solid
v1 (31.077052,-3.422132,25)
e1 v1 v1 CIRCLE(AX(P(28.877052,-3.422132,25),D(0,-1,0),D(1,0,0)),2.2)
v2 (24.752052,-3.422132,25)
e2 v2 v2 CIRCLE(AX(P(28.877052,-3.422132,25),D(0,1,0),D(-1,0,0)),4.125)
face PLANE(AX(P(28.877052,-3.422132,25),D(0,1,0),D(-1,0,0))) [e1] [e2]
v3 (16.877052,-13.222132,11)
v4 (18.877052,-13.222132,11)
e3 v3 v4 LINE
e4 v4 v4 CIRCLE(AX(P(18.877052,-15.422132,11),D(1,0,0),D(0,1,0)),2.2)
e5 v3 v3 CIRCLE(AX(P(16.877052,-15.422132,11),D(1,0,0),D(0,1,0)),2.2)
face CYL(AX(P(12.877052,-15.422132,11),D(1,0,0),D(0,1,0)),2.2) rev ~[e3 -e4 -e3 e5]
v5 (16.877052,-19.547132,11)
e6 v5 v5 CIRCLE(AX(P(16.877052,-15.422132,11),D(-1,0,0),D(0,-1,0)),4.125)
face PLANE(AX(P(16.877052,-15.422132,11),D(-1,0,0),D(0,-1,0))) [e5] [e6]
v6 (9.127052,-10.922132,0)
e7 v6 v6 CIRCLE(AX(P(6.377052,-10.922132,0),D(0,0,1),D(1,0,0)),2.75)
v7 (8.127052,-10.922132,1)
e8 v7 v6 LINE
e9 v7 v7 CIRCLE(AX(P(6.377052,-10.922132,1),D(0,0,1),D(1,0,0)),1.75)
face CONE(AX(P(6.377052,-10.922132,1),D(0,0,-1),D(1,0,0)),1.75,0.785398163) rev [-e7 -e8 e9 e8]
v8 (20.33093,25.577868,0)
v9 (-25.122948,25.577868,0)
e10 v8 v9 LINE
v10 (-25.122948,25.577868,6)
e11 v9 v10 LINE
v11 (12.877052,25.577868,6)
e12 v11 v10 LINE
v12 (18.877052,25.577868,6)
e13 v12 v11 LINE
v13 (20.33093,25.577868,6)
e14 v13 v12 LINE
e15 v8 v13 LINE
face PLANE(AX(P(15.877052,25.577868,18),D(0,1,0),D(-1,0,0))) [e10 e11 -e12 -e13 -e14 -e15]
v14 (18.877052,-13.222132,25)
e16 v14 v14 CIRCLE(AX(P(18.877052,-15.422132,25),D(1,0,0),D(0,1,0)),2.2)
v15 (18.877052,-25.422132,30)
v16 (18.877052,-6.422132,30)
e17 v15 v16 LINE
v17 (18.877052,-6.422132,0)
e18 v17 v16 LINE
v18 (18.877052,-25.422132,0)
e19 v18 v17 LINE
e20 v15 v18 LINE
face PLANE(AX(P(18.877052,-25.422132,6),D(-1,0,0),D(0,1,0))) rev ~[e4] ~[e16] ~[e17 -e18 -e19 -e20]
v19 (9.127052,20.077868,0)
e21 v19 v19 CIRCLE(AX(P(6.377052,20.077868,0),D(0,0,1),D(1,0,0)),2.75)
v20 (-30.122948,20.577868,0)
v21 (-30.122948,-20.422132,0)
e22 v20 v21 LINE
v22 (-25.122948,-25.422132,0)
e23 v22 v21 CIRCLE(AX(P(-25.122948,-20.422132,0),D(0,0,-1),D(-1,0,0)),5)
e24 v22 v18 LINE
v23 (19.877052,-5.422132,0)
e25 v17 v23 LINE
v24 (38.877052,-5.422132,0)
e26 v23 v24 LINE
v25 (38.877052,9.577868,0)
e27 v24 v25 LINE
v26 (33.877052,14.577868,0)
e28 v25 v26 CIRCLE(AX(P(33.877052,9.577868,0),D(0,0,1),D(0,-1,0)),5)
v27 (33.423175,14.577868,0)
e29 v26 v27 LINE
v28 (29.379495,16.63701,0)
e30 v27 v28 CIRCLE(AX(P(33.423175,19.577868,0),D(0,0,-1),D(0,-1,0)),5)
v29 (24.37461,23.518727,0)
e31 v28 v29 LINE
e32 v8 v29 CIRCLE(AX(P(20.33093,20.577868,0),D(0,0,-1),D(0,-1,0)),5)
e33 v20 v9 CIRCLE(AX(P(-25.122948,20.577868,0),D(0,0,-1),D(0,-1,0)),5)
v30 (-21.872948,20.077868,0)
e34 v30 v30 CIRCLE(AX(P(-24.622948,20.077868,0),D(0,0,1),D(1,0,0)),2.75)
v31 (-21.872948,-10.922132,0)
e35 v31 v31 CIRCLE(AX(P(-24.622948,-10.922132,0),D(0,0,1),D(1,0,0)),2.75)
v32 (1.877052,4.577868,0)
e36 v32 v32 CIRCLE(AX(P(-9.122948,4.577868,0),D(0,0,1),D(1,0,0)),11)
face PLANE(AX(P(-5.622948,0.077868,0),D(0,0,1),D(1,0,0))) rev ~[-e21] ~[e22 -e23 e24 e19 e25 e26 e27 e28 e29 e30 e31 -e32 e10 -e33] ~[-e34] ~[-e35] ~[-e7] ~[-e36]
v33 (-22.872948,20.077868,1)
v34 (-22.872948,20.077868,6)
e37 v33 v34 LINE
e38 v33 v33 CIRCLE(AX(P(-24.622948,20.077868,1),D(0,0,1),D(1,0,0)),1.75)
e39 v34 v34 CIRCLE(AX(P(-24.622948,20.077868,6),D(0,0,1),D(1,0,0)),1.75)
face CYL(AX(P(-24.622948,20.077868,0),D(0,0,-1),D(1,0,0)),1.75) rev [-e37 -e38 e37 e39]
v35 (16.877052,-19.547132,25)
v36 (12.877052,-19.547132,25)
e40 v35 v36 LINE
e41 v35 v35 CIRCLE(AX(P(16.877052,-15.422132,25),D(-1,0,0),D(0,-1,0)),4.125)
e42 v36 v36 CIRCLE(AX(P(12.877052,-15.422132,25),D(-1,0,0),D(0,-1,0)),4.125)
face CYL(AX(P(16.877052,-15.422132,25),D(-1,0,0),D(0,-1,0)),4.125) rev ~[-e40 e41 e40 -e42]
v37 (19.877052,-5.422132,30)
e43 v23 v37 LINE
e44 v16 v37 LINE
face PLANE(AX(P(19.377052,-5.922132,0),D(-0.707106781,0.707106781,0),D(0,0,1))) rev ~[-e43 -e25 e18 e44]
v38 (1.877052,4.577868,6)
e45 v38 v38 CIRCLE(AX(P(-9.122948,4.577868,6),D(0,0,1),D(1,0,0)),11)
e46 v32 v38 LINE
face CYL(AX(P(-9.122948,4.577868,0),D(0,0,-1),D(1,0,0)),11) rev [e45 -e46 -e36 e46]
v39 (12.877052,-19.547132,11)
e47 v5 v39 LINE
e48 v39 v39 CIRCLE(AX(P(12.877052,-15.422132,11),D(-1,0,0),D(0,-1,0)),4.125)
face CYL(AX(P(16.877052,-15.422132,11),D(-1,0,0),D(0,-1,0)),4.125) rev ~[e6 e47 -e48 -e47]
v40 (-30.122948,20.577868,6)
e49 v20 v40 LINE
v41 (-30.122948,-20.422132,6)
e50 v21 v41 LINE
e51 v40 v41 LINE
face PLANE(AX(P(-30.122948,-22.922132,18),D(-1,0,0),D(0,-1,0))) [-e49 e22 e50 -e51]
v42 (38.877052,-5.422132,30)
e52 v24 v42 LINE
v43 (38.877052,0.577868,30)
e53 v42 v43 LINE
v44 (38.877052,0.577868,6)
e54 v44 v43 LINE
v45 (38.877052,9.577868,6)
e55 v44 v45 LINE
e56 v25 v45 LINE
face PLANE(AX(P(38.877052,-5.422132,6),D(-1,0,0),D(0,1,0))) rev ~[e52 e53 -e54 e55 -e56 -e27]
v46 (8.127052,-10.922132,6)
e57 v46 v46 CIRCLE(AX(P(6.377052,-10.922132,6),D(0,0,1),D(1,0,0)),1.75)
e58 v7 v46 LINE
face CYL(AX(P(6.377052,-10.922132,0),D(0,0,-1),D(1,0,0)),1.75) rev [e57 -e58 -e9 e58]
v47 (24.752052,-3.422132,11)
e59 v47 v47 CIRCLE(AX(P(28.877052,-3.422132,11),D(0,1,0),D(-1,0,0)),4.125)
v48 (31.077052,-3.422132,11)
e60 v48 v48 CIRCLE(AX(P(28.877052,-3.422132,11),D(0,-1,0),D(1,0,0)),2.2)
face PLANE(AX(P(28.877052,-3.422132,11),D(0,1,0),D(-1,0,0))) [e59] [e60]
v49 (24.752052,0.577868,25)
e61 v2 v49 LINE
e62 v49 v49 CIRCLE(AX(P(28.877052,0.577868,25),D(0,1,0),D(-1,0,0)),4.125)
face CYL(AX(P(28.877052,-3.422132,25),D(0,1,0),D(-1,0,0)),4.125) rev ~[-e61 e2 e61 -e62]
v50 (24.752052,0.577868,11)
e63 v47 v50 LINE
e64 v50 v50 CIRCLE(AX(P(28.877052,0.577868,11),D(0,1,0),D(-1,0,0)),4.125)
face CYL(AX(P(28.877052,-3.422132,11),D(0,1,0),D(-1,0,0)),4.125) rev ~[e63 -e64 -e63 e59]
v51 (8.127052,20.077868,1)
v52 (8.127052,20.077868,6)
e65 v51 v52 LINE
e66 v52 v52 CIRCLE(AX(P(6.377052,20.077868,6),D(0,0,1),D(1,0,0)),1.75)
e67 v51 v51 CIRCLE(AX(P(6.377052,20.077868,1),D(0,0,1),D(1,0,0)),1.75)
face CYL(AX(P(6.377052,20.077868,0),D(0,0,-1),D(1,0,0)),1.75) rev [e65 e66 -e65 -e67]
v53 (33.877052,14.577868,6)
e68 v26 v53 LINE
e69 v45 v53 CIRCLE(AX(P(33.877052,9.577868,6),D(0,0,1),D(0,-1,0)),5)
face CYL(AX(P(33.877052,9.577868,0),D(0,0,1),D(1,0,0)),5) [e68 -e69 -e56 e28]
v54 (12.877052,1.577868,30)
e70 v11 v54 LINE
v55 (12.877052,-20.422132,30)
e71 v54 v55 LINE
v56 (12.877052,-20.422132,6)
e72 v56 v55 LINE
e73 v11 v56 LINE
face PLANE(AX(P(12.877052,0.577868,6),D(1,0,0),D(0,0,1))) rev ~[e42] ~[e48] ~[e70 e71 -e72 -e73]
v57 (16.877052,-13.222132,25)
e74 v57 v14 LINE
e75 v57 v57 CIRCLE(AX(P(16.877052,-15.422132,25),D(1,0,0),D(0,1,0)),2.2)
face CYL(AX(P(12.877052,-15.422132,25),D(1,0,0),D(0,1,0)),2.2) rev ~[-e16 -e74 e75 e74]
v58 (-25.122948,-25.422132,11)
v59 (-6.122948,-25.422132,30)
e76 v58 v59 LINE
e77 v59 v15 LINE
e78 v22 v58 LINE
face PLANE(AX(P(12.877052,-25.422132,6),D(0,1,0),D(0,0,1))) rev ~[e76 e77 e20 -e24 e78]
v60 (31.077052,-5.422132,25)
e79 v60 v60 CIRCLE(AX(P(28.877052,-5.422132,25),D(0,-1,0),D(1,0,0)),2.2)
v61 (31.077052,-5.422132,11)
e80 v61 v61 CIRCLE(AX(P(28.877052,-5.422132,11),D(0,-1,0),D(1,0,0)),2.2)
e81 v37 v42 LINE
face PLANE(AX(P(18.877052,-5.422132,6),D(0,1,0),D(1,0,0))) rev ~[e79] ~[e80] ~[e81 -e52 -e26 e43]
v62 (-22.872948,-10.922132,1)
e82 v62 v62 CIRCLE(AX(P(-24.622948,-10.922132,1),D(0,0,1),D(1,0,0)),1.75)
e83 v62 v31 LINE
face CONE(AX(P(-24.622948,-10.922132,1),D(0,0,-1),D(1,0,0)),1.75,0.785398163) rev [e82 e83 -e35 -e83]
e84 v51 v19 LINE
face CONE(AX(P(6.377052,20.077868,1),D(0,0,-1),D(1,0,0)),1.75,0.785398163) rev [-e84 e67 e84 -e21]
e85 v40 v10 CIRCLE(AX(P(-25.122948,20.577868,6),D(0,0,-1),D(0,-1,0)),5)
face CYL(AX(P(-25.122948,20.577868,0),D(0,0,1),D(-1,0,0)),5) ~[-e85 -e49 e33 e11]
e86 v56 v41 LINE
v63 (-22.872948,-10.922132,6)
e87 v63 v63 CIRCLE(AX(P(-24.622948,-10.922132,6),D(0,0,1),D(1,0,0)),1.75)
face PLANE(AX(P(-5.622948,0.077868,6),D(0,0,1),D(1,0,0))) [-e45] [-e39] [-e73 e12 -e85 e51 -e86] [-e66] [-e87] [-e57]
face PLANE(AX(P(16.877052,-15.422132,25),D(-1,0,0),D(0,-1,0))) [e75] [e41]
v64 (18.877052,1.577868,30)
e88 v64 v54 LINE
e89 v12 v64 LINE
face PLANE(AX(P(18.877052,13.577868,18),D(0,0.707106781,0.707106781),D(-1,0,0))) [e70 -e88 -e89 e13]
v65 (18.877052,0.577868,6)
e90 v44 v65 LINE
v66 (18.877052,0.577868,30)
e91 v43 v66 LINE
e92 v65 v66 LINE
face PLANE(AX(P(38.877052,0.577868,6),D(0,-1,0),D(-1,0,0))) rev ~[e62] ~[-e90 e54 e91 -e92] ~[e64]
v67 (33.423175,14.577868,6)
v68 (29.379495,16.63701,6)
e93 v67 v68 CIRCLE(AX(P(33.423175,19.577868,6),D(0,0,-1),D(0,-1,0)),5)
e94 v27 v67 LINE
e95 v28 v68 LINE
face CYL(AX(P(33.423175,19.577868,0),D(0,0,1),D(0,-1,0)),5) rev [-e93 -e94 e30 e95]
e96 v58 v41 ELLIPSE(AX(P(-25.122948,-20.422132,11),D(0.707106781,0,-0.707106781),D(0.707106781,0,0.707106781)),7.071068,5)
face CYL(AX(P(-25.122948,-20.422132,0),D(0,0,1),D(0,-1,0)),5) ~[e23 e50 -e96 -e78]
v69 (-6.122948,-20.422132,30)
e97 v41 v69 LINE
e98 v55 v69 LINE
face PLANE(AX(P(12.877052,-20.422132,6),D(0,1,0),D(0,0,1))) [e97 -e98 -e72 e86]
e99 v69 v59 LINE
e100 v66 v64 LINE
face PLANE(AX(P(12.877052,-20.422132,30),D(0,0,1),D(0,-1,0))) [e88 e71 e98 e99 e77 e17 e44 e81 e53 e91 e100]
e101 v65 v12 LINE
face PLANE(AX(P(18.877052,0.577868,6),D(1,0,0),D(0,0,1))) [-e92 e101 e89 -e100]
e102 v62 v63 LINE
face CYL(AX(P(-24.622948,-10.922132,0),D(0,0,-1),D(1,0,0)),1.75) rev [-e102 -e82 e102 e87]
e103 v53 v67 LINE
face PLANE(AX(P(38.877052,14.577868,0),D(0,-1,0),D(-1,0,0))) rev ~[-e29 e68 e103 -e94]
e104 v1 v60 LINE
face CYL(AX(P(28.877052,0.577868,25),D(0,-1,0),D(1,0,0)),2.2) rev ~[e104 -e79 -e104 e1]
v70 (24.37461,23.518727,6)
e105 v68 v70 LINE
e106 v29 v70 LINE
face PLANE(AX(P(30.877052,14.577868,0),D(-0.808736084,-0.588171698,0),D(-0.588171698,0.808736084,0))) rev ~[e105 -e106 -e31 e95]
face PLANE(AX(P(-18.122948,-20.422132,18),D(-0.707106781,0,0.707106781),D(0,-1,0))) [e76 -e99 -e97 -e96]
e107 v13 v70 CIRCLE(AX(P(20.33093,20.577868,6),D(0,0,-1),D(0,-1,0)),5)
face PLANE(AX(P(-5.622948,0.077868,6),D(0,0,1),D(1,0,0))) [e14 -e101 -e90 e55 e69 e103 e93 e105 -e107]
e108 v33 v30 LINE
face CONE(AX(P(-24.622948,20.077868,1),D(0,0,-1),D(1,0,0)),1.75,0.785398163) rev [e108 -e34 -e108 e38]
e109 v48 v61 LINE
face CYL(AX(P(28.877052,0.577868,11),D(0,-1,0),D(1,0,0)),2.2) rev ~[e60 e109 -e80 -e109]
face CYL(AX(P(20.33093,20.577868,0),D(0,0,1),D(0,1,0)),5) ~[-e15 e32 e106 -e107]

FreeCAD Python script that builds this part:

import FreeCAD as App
import Part
import Sketcher
Q = App.Units.Quantity


def edges_at(feature, points):
    """Names of the edges that pass closest to the given points."""
    edges = feature.Shape.Edges
    near = lambda p: min(range(len(edges)), key=lambda i: edges[i].distToShape(Part.Vertex(*p))[0])
    return sorted({f"Edge{near(p) + 1}" for p in points})


def add_polygon(sketch, points):
    """Adds a closed chain of lines whose ends are joined by coincident constraints."""
    first, n = sketch.GeometryCount, len(points)
    for a, b in zip(points, points[1:] + points[:1]):
        sketch.addGeometry(Part.LineSegment(App.Vector(*a, 0), App.Vector(*b, 0)), False)
    for i in range(n):
        sketch.addConstraint(Sketcher.Constraint("Coincident", first + i, 2, first + (i + 1) % n, 1))

doc = App.newDocument("Part")
body = doc.addObject("PartDesign::Body", "Body")

# Sketch on XY plane
sketch1 = doc.addObject("Sketcher::SketchObject", "Sketch")
body.addObject(sketch1)
sketch1.AttachmentSupport = (doc.XY_Plane, [""])
sketch1.MapMode = "FlatFace"
add_polygon(sketch1, [(-30.122948, 25.577868), (-30.122948, -25.422132), (18.877052, -25.422132), (18.877052, -5.422132), (38.877052, -5.422132), (38.877052, 14.577868), (30.877052, 14.577868), (22.877052, 25.577868)])  # lines 0-7
sketch1.addGeometry(Part.Circle(App.Vector(-24.622948, -10.922132, 0), App.Vector(0, 0, 1), 1.75), False)  # 8
sketch1.addGeometry(Part.Circle(App.Vector(6.377052, -10.922132, 0), App.Vector(0, 0, 1), 1.75), False)  # 9
sketch1.addGeometry(Part.Circle(App.Vector(-24.622948, 20.077868, 0), App.Vector(0, 0, 1), 1.75), False)  # 10
sketch1.addGeometry(Part.Circle(App.Vector(-9.122948, 4.577868, 0), App.Vector(0, 0, 1), 11), False)  # 11
sketch1.addGeometry(Part.Circle(App.Vector(6.377052, 20.077868, 0), App.Vector(0, 0, 1), 1.75), False)  # 12
sketch1.addConstraint([
    Sketcher.Constraint("Vertical", 0),
    Sketcher.Constraint("Horizontal", 1),
    Sketcher.Constraint("Vertical", 2),
    Sketcher.Constraint("Horizontal", 3),
    Sketcher.Constraint("Vertical", 4),
    Sketcher.Constraint("Horizontal", 5),
    Sketcher.Constraint("Horizontal", 7),
    Sketcher.Constraint("Equal", 8, 9),
    Sketcher.Constraint("Equal", 9, 10),
    Sketcher.Constraint("Equal", 10, 12),
    Sketcher.Constraint("Horizontal", 8, 3, 9, 3),
    Sketcher.Constraint("Horizontal", 10, 3, 12, 3),
    Sketcher.Constraint("Vertical", 8, 3, 10, 3),
    Sketcher.Constraint("Vertical", 9, 3, 12, 3),
    Sketcher.Constraint("Equal", 3, 2),
    Sketcher.Constraint("Equal", 2, 4),
    Sketcher.Constraint("Diameter", 11, Q("22 mm")),
    Sketcher.Constraint("Diameter", 8, Q("3.5 mm")),
    Sketcher.Constraint("DistanceX", 1, 1, 1, 2, Q("49 mm")),
    Sketcher.Constraint("DistanceX", 3, 1, 3, 2, Q("20 mm")),
    Sketcher.Constraint("DistanceX", 5, 2, 5, 1, Q("8 mm")),
    Sketcher.Constraint("DistanceX", 7, 2, 7, 1, Q("53 mm")),
    Sketcher.Constraint("DistanceY", 0, 2, 0, 1, Q("51 mm")),
    Sketcher.Constraint("DistanceX", 8, 3, 9, 3, Q("31 mm")),
    Sketcher.Constraint("DistanceY", 8, 3, 10, 3, Q("31 mm")),
    Sketcher.Constraint("DistanceX", 0, 2, 11, 3, Q("21 mm")),
    Sketcher.Constraint("DistanceY", 0, 2, 11, 3, Q("30 mm")),
    Sketcher.Constraint("DistanceX", 8, 3, 11, 3, Q("15.5 mm")),
    Sketcher.Constraint("DistanceY", 8, 3, 11, 3, Q("15.5 mm")),
    Sketcher.Constraint("DistanceY", 8, 3, -1, 1, Q("10.922132 mm")),
    Sketcher.Constraint("DistanceX", 8, 3, -1, 1, Q("24.622948 mm")),
])
pad1 = doc.addObject("PartDesign::Pad", "Pad")
body.addObject(pad1)
pad1.Profile = sketch1
pad1.Length = 6
doc.recompute()

chamfer = doc.addObject("PartDesign::Chamfer", "Chamfer")
body.addObject(chamfer)
chamfer.Base = (pad1, edges_at(pad1, [
    (-26.373, 20.078, 0),
    (4.627, 20.078, 0),
    (4.627, -10.922, 0),
    (-26.373, -10.922, 0),
]))
chamfer.Size = 1

# Sketch on XY plane
sketch2 = doc.addObject("Sketcher::SketchObject", "Sketch001")
body.addObject(sketch2)
sketch2.AttachmentSupport = (doc.XY_Plane, [""])
sketch2.MapMode = "FlatFace"
sketch2.AttachmentOffset = App.Placement(App.Vector(0, 0, 6), App.Rotation())
add_polygon(sketch2, [(18.877052, -25.422132), (18.877052, -5.422132), (38.877052, -5.422132), (38.877052, 0.577868), (12.877052, 0.577868), (12.877052, -25.422132)])  # lines 0-5
sketch2.addConstraint([
    Sketcher.Constraint("Vertical", 0),
    Sketcher.Constraint("Horizontal", 1),
    Sketcher.Constraint("Vertical", 2),
    Sketcher.Constraint("Horizontal", 3),
    Sketcher.Constraint("Vertical", 4),
    Sketcher.Constraint("Horizontal", 5),
    Sketcher.Constraint("Equal", 1, 0),
    Sketcher.Constraint("Equal", 5, 2),
    Sketcher.Constraint("DistanceX", 1, 1, 1, 2, Q("20 mm")),
    Sketcher.Constraint("DistanceX", 3, 2, 3, 1, Q("26 mm")),
    Sketcher.Constraint("DistanceY", 0, 2, -1, 1, Q("5.422132 mm")),
    Sketcher.Constraint("DistanceX", -1, 1, 0, 2, Q("18.877052 mm")),
])
pad2 = doc.addObject("PartDesign::Pad", "Pad001")
body.addObject(pad2)
pad2.Profile = sketch2
pad2.Length = 24

# Sketch on XY plane
sketch3 = doc.addObject("Sketcher::SketchObject", "Sketch002")
body.addObject(sketch3)
sketch3.AttachmentSupport = (doc.XY_Plane, [""])
sketch3.MapMode = "FlatFace"
sketch3.AttachmentOffset = App.Placement(App.Vector(0, 0, 6), App.Rotation())
add_polygon(sketch3, [(18.877052, -25.422132), (18.877052, -5.422132), (38.877052, -5.422132), (38.877052, 0.577868), (12.877052, 0.577868), (12.877052, -25.422132)])  # lines 0-5
sketch3.addConstraint([
    Sketcher.Constraint("Vertical", 0),
    Sketcher.Constraint("Horizontal", 1),
    Sketcher.Constraint("Vertical", 2),
    Sketcher.Constraint("Horizontal", 3),
    Sketcher.Constraint("Vertical", 4),
    Sketcher.Constraint("Horizontal", 5),
    Sketcher.Constraint("Equal", 1, 0),
    Sketcher.Constraint("Equal", 5, 2),
    Sketcher.Constraint("DistanceX", 1, 1, 1, 2, Q("20 mm")),
    Sketcher.Constraint("DistanceX", 3, 2, 3, 1, Q("26 mm")),
    Sketcher.Constraint("DistanceY", 0, 2, -1, 1, Q("5.422132 mm")),
    Sketcher.Constraint("DistanceX", -1, 1, 0, 2, Q("18.877052 mm")),
])
pad3 = doc.addObject("PartDesign::Pad", "Pad002")
body.addObject(pad3)
pad3.Profile = sketch3
pad3.Length = 10
doc.recompute()

chamfer2 = doc.addObject("PartDesign::Chamfer", "Chamfer001")
body.addObject(chamfer2)
chamfer2.Base = (pad3, edges_at(pad3, [(18.877, -5.422, 15)]))
chamfer2.Size = 1

# Sketch on XZ plane
sketch4 = doc.addObject("Sketcher::SketchObject", "Sketch003")
body.addObject(sketch4)
sketch4.AttachmentSupport = (doc.XZ_Plane, [""])
sketch4.MapMode = "FlatFace"
sketch4.AttachmentOffset = App.Placement(App.Vector(0, 0, -0.577868), App.Rotation())
sketch4.addGeometry([
    Part.Circle(App.Vector(28.877052, 25, 0), App.Vector(0, 0, 1), 2.2),
    Part.Circle(App.Vector(28.877052, 11, 0), App.Vector(0, 0, 1), 2.2),
], False)
sketch4.addConstraint([
    Sketcher.Constraint("Equal", 0, 1),
    Sketcher.Constraint("Vertical", 0, 3, 1, 3),
    Sketcher.Constraint("Diameter", 0, Q("4.4 mm")),
    Sketcher.Constraint("DistanceY", -1, 1, 0, 3, Q("25 mm")),
    Sketcher.Constraint("DistanceY", -1, 1, 1, 3, Q("11 mm")),
    Sketcher.Constraint("DistanceX", -1, 1, 0, 3, Q("28.877052 mm")),
])
doc.recompute()
hole = doc.addObject("PartDesign::Hole", "Hole")
body.addObject(hole)
hole.Profile = sketch4
hole.ThreadType = "None"
hole.Diameter = 4.4
hole.DepthType = "ThroughAll"
hole.HoleCutType = "Counterbore"
hole.HoleCutDiameter = 8.25
hole.HoleCutDepth = 4
hole.Reversed = True

# Sketch on YZ plane
sketch5 = doc.addObject("Sketcher::SketchObject", "Sketch004")
body.addObject(sketch5)
sketch5.AttachmentSupport = (doc.YZ_Plane, [""])
sketch5.MapMode = "FlatFace"
sketch5.AttachmentOffset = App.Placement(App.Vector(0, 0, 12.877052), App.Rotation())
sketch5.addGeometry([
    Part.Circle(App.Vector(-15.422132, 25, 0), App.Vector(0, 0, 1), 2.2),
    Part.Circle(App.Vector(-15.422132, 11, 0), App.Vector(0, 0, 1), 2.2),
], False)
sketch5.addConstraint([
    Sketcher.Constraint("Equal", 0, 1),
    Sketcher.Constraint("Vertical", 0, 3, 1, 3),
    Sketcher.Constraint("Diameter", 0, Q("4.4 mm")),
    Sketcher.Constraint("DistanceY", -1, 1, 0, 3, Q("25 mm")),
    Sketcher.Constraint("DistanceY", -1, 1, 1, 3, Q("11 mm")),
    Sketcher.Constraint("DistanceX", 0, 3, -1, 1, Q("15.422132 mm")),
])
doc.recompute()
hole2 = doc.addObject("PartDesign::Hole", "Hole001")
body.addObject(hole2)
hole2.Profile = sketch5
hole2.ThreadType = "None"
hole2.Diameter = 4.4
hole2.DepthType = "ThroughAll"
hole2.HoleCutType = "Counterbore"
hole2.HoleCutDiameter = 8.25
hole2.HoleCutDepth = 4
hole2.Reversed = True

# Sketch on XZ plane
sketch6 = doc.addObject("Sketcher::SketchObject", "Sketch005")
body.addObject(sketch6)
sketch6.AttachmentSupport = (doc.XZ_Plane, [""])
sketch6.MapMode = "FlatFace"
sketch6.AttachmentOffset = App.Placement(App.Vector(0, 0, -0.577868), App.Rotation())
add_polygon(sketch6, [(18.877052, 30), (18.877052, 6), (12.877052, 6), (12.877052, 30)])  # lines 0-3
sketch6.addConstraint([
    Sketcher.Constraint("Vertical", 0),
    Sketcher.Constraint("Horizontal", 1),
    Sketcher.Constraint("Vertical", 2),
    Sketcher.Constraint("Horizontal", 3),
    Sketcher.Constraint("DistanceX", 1, 2, 1, 1, Q("6 mm")),
    Sketcher.Constraint("DistanceY", 0, 2, 0, 1, Q("24 mm")),
    Sketcher.Constraint("DistanceY", -1, 1, 0, 2, Q("6 mm")),
    Sketcher.Constraint("DistanceX", -1, 1, 0, 2, Q("18.877052 mm")),
])
pad4 = doc.addObject("PartDesign::Pad", "Pad003")
body.addObject(pad4)
pad4.Profile = sketch6
pad4.Length = 25
pad4.Reversed = True

# Sketch on YZ plane
sketch7 = doc.addObject("Sketcher::SketchObject", "Sketch006")
body.addObject(sketch7)
sketch7.AttachmentSupport = (doc.YZ_Plane, [""])
sketch7.MapMode = "FlatFace"
sketch7.AttachmentOffset = App.Placement(App.Vector(0, 0, 12.877052), App.Rotation())
add_polygon(sketch7, [(-20.422132, 30), (-20.422132, 6), (-25.422132, 6), (-25.422132, 30)])  # lines 0-3
sketch7.addConstraint([
    Sketcher.Constraint("Vertical", 0),
    Sketcher.Constraint("Horizontal", 1),
    Sketcher.Constraint("Vertical", 2),
    Sketcher.Constraint("Horizontal", 3),
    Sketcher.Constraint("DistanceX", 1, 2, 1, 1, Q("5 mm")),
    Sketcher.Constraint("DistanceY", 0, 2, 0, 1, Q("24 mm")),
    Sketcher.Constraint("DistanceY", -1, 1, 0, 2, Q("6 mm")),
    Sketcher.Constraint("DistanceX", 0, 2, -1, 1, Q("20.422132 mm")),
])
pad5 = doc.addObject("PartDesign::Pad", "Pad004")
body.addObject(pad5)
pad5.Profile = sketch7
pad5.Length = 43
pad5.Reversed = True
doc.recompute()

chamfer3 = doc.addObject("PartDesign::Chamfer", "Chamfer002")
body.addObject(chamfer3)
chamfer3.Base = (pad5, edges_at(pad5, [(-30.123, -22.922, 30), (15.877, 25.578, 30)]))
chamfer3.Size = 24
doc.recompute()

fillet = doc.addObject("PartDesign::Fillet", "Fillet")
body.addObject(fillet)
fillet.Base = (chamfer3, edges_at(chamfer3, [
    (30.877, 14.578, 3),
    (22.877, 25.578, 3),
    (38.877, 14.578, 3),
    (-30.123, -25.422, 3),
    (-30.123, 25.578, 3),
]))
fillet.Radius = 5

doc.recompute()
